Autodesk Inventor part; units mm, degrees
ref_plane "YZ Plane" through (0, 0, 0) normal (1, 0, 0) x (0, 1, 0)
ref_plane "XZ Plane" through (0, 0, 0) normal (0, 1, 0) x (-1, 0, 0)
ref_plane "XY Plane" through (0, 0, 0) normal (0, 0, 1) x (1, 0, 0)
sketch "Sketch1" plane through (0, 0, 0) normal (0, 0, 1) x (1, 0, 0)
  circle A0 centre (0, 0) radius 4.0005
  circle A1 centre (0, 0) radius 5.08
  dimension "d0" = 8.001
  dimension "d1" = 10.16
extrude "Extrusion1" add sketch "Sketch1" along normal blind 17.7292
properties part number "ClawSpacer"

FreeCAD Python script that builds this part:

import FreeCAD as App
import Part
import Sketcher
from FreeCAD import Vector
Q = App.Units.Quantity

doc = App.newDocument("Part")
body = doc.addObject("PartDesign::Body", "Body")

# Sketch on XY plane
sketch1 = doc.addObject("Sketcher::SketchObject", "Sketch")
body.addObject(sketch1)
sketch1.AttachmentSupport = (doc.XY_Plane, [""])
sketch1.MapMode = "FlatFace"
sketch1.addGeometry(Part.Circle(Vector(0, 0, 0), Vector(0, 0, 1), 5.08), False)
sketch1.addGeometry(Part.Circle(Vector(0, 0, 0), Vector(0, 0, 1), 4.0005), False)
sketch1.addConstraint(Sketcher.Constraint("Coincident", 0, 3, -1, 1))
sketch1.addConstraint(Sketcher.Constraint("Coincident", 1, 3, -1, 1))
sketch1.addConstraint(Sketcher.Constraint("Diameter", 0, Q("0.4 in")))
sketch1.addConstraint(Sketcher.Constraint("Diameter", 1, Q("0.315 in")))
pad1 = doc.addObject("PartDesign::Pad", "Pad")
body.addObject(pad1)
pad1.Profile = sketch1
pad1.Length = Q("0.698 in")

doc.recompute()
